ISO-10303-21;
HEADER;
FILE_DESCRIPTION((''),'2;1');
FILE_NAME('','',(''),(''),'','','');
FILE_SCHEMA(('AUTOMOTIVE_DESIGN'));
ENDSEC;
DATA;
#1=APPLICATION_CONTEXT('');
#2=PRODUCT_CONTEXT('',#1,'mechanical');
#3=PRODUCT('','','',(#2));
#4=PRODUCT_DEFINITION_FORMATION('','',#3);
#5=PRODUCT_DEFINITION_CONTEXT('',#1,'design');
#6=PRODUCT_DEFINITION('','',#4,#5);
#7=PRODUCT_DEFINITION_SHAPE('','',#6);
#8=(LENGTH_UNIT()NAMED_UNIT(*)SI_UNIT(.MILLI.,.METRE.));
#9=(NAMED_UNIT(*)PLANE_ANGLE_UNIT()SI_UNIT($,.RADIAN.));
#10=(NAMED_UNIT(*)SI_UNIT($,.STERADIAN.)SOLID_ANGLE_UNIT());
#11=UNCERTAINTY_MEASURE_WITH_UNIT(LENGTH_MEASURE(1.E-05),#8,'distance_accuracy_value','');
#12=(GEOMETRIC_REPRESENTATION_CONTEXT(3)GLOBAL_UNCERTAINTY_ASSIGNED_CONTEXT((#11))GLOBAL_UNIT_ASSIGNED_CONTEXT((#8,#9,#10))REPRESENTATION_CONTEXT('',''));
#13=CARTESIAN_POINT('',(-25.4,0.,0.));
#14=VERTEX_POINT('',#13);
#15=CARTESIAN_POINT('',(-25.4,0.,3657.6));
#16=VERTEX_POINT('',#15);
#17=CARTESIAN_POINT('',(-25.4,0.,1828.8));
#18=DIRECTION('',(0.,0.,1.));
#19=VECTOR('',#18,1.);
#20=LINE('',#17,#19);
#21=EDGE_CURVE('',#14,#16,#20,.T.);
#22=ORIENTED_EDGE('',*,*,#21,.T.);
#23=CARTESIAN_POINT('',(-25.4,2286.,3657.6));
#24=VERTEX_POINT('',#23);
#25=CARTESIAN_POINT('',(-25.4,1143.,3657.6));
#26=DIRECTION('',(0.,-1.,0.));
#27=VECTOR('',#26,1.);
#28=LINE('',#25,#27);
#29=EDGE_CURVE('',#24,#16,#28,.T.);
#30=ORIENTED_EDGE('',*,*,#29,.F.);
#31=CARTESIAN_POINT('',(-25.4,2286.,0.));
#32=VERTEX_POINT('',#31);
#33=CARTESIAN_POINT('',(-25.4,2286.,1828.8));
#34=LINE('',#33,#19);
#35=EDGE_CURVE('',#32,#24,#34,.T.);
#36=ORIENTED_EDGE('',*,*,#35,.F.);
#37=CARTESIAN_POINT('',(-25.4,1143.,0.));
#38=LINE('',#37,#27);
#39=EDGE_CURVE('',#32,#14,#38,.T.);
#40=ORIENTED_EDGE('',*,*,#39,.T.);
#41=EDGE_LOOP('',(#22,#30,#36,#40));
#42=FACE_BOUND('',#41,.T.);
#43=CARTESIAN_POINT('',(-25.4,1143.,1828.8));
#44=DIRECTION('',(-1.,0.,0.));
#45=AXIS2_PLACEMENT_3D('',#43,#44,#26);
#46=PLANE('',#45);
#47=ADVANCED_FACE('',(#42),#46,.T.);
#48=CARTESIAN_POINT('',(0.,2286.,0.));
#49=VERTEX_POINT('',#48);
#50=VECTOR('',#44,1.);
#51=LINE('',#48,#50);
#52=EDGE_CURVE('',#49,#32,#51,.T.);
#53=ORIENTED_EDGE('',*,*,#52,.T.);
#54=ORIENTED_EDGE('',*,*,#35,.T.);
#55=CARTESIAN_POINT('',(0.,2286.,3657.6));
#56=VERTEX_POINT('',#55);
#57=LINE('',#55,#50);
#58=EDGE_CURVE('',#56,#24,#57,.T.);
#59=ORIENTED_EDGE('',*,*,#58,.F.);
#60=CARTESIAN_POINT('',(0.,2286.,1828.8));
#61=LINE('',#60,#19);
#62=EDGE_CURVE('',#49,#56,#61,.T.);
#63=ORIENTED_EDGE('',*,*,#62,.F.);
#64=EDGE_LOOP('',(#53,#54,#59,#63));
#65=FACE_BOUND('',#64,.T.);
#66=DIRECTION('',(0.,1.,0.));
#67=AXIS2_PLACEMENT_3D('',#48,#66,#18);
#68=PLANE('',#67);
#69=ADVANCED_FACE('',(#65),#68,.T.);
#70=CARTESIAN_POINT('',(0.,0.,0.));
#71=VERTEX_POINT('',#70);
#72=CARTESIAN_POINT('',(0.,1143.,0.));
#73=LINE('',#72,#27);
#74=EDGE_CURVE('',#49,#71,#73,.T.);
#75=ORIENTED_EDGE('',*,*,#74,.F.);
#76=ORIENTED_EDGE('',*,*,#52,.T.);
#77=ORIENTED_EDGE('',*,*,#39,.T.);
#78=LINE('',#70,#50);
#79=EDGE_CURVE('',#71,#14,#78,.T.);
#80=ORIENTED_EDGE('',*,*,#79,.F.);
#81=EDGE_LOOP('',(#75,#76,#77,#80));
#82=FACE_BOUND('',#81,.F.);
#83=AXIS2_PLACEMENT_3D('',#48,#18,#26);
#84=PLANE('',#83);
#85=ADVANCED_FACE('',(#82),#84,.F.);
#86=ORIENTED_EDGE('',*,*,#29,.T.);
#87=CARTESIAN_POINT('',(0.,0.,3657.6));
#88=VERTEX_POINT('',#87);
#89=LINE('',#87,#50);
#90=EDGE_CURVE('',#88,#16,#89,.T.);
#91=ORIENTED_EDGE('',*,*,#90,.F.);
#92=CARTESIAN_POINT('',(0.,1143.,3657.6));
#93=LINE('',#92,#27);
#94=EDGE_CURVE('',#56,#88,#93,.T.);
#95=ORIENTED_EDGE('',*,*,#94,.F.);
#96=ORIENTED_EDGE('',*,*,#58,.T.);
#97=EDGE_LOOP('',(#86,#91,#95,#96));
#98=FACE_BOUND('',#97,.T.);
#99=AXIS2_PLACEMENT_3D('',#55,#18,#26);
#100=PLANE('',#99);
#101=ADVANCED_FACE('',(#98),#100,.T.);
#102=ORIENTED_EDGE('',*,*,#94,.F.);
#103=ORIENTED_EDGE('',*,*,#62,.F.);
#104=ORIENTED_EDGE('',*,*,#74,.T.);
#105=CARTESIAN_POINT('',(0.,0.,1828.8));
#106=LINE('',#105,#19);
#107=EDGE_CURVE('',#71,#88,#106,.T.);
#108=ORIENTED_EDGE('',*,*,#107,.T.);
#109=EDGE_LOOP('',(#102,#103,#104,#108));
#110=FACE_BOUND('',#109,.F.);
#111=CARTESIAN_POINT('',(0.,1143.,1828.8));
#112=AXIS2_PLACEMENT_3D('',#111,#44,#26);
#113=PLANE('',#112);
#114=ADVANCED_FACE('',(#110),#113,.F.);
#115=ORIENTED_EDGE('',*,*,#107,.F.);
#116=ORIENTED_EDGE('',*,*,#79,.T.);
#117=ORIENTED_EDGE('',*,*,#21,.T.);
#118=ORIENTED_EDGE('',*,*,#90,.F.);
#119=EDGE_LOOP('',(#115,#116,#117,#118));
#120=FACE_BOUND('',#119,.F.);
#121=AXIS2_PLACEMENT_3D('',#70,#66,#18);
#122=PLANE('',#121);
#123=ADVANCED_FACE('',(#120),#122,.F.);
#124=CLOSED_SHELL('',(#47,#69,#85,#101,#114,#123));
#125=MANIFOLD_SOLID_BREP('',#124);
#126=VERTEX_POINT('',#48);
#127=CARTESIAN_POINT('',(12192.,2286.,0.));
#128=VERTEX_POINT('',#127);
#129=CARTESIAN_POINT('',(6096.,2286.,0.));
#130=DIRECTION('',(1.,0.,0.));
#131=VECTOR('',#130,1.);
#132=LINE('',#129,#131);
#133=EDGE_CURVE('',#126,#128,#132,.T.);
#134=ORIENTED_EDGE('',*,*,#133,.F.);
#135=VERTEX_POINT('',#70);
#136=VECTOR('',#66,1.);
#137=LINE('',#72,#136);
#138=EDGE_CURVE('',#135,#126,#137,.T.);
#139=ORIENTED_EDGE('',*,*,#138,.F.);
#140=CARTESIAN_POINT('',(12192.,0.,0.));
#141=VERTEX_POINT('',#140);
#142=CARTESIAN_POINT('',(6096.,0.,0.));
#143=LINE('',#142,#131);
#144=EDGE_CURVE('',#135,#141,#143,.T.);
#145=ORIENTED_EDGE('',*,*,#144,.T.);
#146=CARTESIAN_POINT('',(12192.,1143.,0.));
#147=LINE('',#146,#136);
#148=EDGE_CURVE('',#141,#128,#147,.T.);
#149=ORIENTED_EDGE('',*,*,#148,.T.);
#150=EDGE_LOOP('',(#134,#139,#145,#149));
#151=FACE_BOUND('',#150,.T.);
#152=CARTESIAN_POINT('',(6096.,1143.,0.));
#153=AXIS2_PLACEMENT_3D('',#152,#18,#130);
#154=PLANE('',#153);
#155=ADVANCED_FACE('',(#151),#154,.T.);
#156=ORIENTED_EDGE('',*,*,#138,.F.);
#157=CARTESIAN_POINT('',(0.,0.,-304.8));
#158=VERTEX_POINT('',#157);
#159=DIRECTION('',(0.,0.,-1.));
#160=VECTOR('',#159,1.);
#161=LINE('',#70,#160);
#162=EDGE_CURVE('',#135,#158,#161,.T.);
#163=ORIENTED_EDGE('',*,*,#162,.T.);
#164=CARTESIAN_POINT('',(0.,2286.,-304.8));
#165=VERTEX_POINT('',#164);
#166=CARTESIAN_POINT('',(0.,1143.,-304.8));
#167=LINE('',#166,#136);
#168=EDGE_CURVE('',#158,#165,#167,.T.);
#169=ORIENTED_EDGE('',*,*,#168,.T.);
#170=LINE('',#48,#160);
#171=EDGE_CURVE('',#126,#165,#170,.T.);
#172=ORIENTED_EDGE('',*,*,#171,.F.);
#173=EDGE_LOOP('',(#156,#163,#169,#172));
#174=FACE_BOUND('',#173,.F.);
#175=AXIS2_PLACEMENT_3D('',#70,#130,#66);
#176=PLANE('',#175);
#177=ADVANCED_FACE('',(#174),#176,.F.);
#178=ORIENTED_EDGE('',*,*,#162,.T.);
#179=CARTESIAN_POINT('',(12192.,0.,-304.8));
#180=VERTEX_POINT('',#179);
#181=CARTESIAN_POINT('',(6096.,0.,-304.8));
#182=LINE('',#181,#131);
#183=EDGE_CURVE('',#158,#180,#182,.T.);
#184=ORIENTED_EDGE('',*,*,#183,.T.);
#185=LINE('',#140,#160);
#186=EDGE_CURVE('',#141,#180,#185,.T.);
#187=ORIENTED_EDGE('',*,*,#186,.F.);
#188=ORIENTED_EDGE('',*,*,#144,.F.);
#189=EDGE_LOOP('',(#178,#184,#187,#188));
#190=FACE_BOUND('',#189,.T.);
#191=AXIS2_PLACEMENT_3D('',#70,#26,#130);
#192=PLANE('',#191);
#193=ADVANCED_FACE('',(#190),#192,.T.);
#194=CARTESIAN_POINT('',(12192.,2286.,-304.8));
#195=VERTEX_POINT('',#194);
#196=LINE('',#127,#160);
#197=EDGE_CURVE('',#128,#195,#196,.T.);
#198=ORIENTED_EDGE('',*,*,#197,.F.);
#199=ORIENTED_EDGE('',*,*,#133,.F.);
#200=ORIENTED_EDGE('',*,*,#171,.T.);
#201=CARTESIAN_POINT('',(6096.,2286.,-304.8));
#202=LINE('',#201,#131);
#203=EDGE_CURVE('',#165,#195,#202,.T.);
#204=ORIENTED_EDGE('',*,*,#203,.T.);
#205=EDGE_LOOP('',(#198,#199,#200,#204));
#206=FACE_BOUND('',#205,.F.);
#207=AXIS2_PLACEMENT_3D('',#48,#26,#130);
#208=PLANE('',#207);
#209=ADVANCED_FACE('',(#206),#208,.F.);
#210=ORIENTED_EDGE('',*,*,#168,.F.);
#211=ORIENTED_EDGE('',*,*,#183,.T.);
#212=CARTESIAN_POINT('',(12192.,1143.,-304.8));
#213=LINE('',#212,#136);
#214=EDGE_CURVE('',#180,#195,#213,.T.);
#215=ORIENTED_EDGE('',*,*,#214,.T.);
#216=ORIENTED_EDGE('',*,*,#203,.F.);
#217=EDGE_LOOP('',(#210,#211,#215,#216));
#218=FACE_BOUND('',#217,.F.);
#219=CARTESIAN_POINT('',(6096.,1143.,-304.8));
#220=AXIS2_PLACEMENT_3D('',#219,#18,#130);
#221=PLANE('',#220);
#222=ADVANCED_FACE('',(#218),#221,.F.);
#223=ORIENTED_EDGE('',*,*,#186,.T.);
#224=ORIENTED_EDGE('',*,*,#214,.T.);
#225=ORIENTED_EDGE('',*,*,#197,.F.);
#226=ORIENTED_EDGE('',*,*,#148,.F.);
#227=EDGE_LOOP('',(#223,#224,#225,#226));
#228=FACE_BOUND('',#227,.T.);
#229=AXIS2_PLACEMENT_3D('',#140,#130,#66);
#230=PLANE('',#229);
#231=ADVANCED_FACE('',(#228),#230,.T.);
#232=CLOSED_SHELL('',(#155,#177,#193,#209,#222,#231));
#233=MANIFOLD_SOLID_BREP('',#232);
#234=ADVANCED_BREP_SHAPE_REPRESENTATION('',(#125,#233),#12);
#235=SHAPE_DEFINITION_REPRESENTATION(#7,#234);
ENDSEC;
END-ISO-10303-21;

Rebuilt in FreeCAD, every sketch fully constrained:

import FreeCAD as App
import Part
import Sketcher
Q = App.Units.Quantity

doc = App.newDocument("Part")
body = doc.addObject("PartDesign::Body", "Body")

# Sketch on XY plane
sketch1 = doc.addObject("Sketcher::SketchObject", "Sketch")
body.addObject(sketch1)
sketch1.AttachmentSupport = (doc.XY_Plane, [""])
sketch1.MapMode = "FlatFace"
sketch1.addGeometry([
    Part.LineSegment(App.Vector(0, 2286, 0), App.Vector(0, 0, 0)),
    Part.LineSegment(App.Vector(0, 0, 0), App.Vector(12192, 0, 0)),
    Part.LineSegment(App.Vector(12192, 0, 0), App.Vector(12192, 2286, 0)),
    Part.LineSegment(App.Vector(12192, 2286, 0), App.Vector(0, 2286, 0)),
], False)
sketch1.addConstraint([
    Sketcher.Constraint("Coincident", 0, 2, 1, 1),
    Sketcher.Constraint("Coincident", 1, 2, 2, 1),
    Sketcher.Constraint("Coincident", 2, 2, 3, 1),
    Sketcher.Constraint("Coincident", 3, 2, 0, 1),
    Sketcher.Constraint("Vertical", 0),
    Sketcher.Constraint("Horizontal", 1),
    Sketcher.Constraint("Vertical", 2),
    Sketcher.Constraint("Horizontal", 3),
    Sketcher.Constraint("Coincident", 0, 2, -1, 1),
    Sketcher.Constraint("DistanceX", 1, 1, 1, 2, Q("480 in")),
    Sketcher.Constraint("DistanceY", 0, 2, 0, 1, Q("90 in")),
])
pad1 = doc.addObject("PartDesign::Pad", "Pad")
body.addObject(pad1)
pad1.Profile = sketch1
pad1.Length = Q("12 in")
pad1.Reversed = True
body2 = doc.addObject("PartDesign::Body", "Body001")

# Sketch on YZ plane
sketch2 = doc.addObject("Sketcher::SketchObject", "Sketch001")
body2.addObject(sketch2)
sketch2.AttachmentSupport = (doc.getObject("YZ_Plane001"), [""])
sketch2.MapMode = "FlatFace"
sketch2.addGeometry([
    Part.LineSegment(App.Vector(2286, 3658, 0), App.Vector(2286, 0, 0)),
    Part.LineSegment(App.Vector(2286, 0, 0), App.Vector(0, 0, 0)),
    Part.LineSegment(App.Vector(0, 0, 0), App.Vector(0, 3658, 0)),
    Part.LineSegment(App.Vector(0, 3658, 0), App.Vector(2286, 3658, 0)),
], False)
sketch2.addConstraint([
    Sketcher.Constraint("Coincident", 0, 2, 1, 1),
    Sketcher.Constraint("Coincident", 1, 2, 2, 1),
    Sketcher.Constraint("Coincident", 2, 2, 3, 1),
    Sketcher.Constraint("Coincident", 3, 2, 0, 1),
    Sketcher.Constraint("Vertical", 0),
    Sketcher.Constraint("Horizontal", 1),
    Sketcher.Constraint("Vertical", 2),
    Sketcher.Constraint("Horizontal", 3),
    Sketcher.Constraint("Coincident", 1, 2, -1, 1),
    Sketcher.Constraint("DistanceX", 1, 2, 1, 1, Q("90 in")),
    Sketcher.Constraint("DistanceY", 0, 2, 0, 1, Q("144 in")),
])
pad2 = doc.addObject("PartDesign::Pad", "Pad001")
body2.addObject(pad2)
pad2.Profile = sketch2
pad2.Length = Q("1 in")
pad2.Reversed = True

doc.recompute()
